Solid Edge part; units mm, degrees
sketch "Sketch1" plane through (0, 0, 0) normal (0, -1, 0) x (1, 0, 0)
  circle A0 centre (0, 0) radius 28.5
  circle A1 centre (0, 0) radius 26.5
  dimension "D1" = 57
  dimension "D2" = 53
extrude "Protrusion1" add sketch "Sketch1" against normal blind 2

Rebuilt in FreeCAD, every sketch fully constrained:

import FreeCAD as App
import Part
import Sketcher

doc = App.newDocument("Part")
body = doc.addObject("PartDesign::Body", "Body")

# Sketch on XZ plane
sketch1 = body.newObject("Sketcher::SketchObject", "Sketch")
sketch1.AttachmentSupport = (doc.getObject("XZ_Plane"), [""])
sketch1.MapMode = "FlatFace"
sketch1.addGeometry(Part.Circle(App.Vector(0, 0, 0), App.Vector(0, 0, 1), 28), False)
sketch1.addGeometry(Part.Circle(App.Vector(0, 0, 0), App.Vector(0, 0, 1), 26), False)
sketch1.addConstraint(Sketcher.Constraint("Coincident", 0, 3, -1, 1))
sketch1.addConstraint(Sketcher.Constraint("Coincident", 1, 3, -1, 1))
sketch1.addConstraint(Sketcher.Constraint("Diameter", 0, 57.0))
sketch1.addConstraint(Sketcher.Constraint("Diameter", 1, 53.0))
pad1 = body.newObject("PartDesign::Pad", "Pad")
pad1.Profile = sketch1
pad1.Length = 2
pad1.Reversed = True

doc.recompute()
